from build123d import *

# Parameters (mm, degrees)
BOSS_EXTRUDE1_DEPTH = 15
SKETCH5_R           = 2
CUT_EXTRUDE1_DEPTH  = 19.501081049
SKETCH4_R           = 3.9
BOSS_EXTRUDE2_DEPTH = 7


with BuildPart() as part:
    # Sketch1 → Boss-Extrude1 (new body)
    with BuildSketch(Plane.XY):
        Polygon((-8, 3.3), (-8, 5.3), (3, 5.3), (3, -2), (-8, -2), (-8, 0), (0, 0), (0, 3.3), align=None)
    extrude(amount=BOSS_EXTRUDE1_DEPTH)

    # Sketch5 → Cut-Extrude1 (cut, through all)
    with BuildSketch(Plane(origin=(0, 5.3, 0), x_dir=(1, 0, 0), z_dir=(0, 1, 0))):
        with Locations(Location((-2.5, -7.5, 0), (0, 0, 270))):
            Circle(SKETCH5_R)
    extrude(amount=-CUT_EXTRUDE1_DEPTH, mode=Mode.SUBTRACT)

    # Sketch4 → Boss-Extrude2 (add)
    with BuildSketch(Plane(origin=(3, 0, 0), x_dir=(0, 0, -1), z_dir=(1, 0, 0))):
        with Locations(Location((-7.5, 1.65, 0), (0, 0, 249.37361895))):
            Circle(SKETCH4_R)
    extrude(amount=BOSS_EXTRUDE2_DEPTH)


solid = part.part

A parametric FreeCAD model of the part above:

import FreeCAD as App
import Part
import Sketcher


def add_polygon(sketch, points):
    """Adds a closed chain of lines whose ends are joined by coincident constraints."""
    first, n = sketch.GeometryCount, len(points)
    for a, b in zip(points, points[1:] + points[:1]):
        sketch.addGeometry(Part.LineSegment(App.Vector(*a, 0), App.Vector(*b, 0)), False)
    for i in range(n):
        sketch.addConstraint(Sketcher.Constraint("Coincident", first + i, 2, first + (i + 1) % n, 1))

doc = App.newDocument("Part")
params = doc.addObject("Spreadsheet::Sheet", "Params")
for row, (alias, value) in enumerate([
    ("sketch1_width", "8 mm"),
    ("sketch1_width2", "11 mm"),
    ("sketch1_height", "2 mm"),
    ("sketch1_height2", "3.3 mm"),
    ("pad1_length", "15 mm"),
    ("sketch2_diameter", "4 mm"),
    ("sketch3_diameter", "7.8 mm"),
    ("pad2_length", "7 mm"),
], start=1):
    params.set(f"A{row}", alias)
    params.set(f"B{row}", "=" + value)
    params.setAlias(f"B{row}", alias)

body = doc.addObject("PartDesign::Body", "Body")

# Sketch on XY plane
sketch1 = body.newObject("Sketcher::SketchObject", "Sketch")
sketch1.AttachmentSupport = (doc.getObject("XY_Plane"), [""])
sketch1.MapMode = "FlatFace"
add_polygon(sketch1, [(-8, 5.3), (-8, 3.3), (0, 3.3), (0, 0), (-8, 0), (-8, -2), (3, -2), (3, 5.3)])  # lines 0-7
sketch1.addConstraint(Sketcher.Constraint("Vertical", 0))
sketch1.addConstraint(Sketcher.Constraint("Horizontal", 1))
sketch1.addConstraint(Sketcher.Constraint("Vertical", 2))
sketch1.addConstraint(Sketcher.Constraint("Horizontal", 3))
sketch1.addConstraint(Sketcher.Constraint("Vertical", 4))
sketch1.addConstraint(Sketcher.Constraint("Horizontal", 5))
sketch1.addConstraint(Sketcher.Constraint("Vertical", 6))
sketch1.addConstraint(Sketcher.Constraint("Horizontal", 7))
sketch1.addConstraint(Sketcher.Constraint("Coincident", 2, 2, -1, 1))
sketch1.addConstraint(Sketcher.Constraint("Vertical", 0, 2, 3, 2))
sketch1.addConstraint(Sketcher.Constraint("Equal", 0, 4))
sketch1.addConstraint(Sketcher.Constraint("DistanceX", 1, 1, 1, 2, 8.0))
sketch1.addConstraint(Sketcher.Constraint("DistanceX", 5, 1, 5, 2, 11.0))
sketch1.addConstraint(Sketcher.Constraint("DistanceY", 0, 2, 0, 1, 2.0))
sketch1.addConstraint(Sketcher.Constraint("DistanceY", 2, 2, 2, 1, 3.3))
sketch1.setExpression("Constraints[19]", "Params.sketch1_width")
sketch1.setExpression("Constraints[20]", "Params.sketch1_width2")
sketch1.setExpression("Constraints[21]", "Params.sketch1_height")
sketch1.setExpression("Constraints[22]", "Params.sketch1_height2")
pad1 = body.newObject("PartDesign::Pad", "Pad")
pad1.Profile = sketch1
pad1.setExpression("Length", "Params.pad1_length")

# Sketch on XZ plane
sketch2 = body.newObject("Sketcher::SketchObject", "Sketch001")
sketch2.AttachmentSupport = (doc.getObject("XZ_Plane"), [""])
sketch2.MapMode = "FlatFace"
sketch2.AttachmentOffset = App.Placement(App.Vector(0, 0, -5.3), App.Rotation())
sketch2.addGeometry(Part.Circle(App.Vector(-2.5, 7.5, 0), App.Vector(0, 0, 1), 2), False)
sketch2.addConstraint(Sketcher.Constraint("Diameter", 0, 4.0))
sketch2.addConstraint(Sketcher.Constraint("DistanceX", 0, 3, -1, 1, 2.5))
sketch2.addConstraint(Sketcher.Constraint("DistanceY", -1, 1, 0, 3, 7.5))
sketch2.setExpression("Constraints[0]", "Params.sketch2_diameter")
pocket1 = body.newObject("PartDesign::Pocket", "Pocket")
pocket1.Profile = sketch2
pocket1.Type = "ThroughAll"
pocket1.Reversed = True

# Sketch on YZ plane
sketch3 = body.newObject("Sketcher::SketchObject", "Sketch002")
sketch3.AttachmentSupport = (doc.getObject("YZ_Plane"), [""])
sketch3.MapMode = "FlatFace"
sketch3.AttachmentOffset = App.Placement(App.Vector(0, 0, 3), App.Rotation())
sketch3.addGeometry(Part.Circle(App.Vector(1.6, 7.5, 0), App.Vector(0, 0, 1), 3.9), False)
sketch3.addConstraint(Sketcher.Constraint("Diameter", 0, 7.8))
sketch3.addConstraint(Sketcher.Constraint("DistanceY", -1, 1, 0, 3, 7.5))
sketch3.addConstraint(Sketcher.Constraint("DistanceX", -1, 1, 0, 3, 1.65))
sketch3.setExpression("Constraints[0]", "Params.sketch3_diameter")
pad2 = body.newObject("PartDesign::Pad", "Pad001")
pad2.Profile = sketch3
pad2.setExpression("Length", "Params.pad2_length")

doc.recompute()
